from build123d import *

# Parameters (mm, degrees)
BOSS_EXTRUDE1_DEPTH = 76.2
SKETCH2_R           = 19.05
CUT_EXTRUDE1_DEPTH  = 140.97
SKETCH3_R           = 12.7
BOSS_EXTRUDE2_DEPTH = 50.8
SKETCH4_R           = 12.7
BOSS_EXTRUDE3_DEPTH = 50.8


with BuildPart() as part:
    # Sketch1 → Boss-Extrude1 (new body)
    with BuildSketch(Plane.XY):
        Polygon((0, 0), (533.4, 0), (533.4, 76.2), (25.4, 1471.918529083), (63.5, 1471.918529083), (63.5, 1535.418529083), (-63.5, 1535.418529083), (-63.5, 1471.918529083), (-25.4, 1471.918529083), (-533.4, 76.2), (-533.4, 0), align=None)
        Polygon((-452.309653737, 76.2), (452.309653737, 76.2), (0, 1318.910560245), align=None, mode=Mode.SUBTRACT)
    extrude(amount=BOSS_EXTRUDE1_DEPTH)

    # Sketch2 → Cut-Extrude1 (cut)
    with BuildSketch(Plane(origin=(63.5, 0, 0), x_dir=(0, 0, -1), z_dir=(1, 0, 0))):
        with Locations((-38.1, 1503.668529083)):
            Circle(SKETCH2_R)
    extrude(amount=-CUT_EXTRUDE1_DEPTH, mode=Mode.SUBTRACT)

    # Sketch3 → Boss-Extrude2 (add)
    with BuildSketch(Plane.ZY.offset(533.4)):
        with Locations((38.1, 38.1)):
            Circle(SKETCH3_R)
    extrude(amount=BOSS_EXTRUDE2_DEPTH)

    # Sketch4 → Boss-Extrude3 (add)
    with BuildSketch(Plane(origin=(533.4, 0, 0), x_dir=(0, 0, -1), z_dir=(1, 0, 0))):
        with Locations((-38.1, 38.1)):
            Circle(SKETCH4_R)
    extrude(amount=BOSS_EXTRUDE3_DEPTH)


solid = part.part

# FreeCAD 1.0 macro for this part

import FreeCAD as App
import Part
import Sketcher

V = App.Vector
Q = App.Units.Quantity

doc = App.newDocument("Part")
body = doc.addObject("PartDesign::Body", "Body")

# Sketch on XY plane
sketch1 = body.newObject("Sketcher::SketchObject", "Sketch")
sketch1.AttachmentSupport = (doc.getObject("XY_Plane"), [""])
sketch1.MapMode = "FlatFace"
sketch1.addGeometry(Part.LineSegment(V(533, 0, 0), V(533, 76, 0)), False)
sketch1.addGeometry(Part.LineSegment(V(533, 76, 0), V(25, 1472, 0)), False)
sketch1.addGeometry(Part.LineSegment(V(25, 1472, 0), V(64, 1472, 0)), False)
sketch1.addGeometry(Part.LineSegment(V(64, 1472, 0), V(64, 1535, 0)), False)
sketch1.addGeometry(Part.LineSegment(V(64, 1535, 0), V(-64, 1535, 0)), False)
sketch1.addGeometry(Part.LineSegment(V(-64, 1535, 0), V(-64, 1472, 0)), False)
sketch1.addGeometry(Part.LineSegment(V(-64, 1472, 0), V(-25, 1472, 0)), False)
sketch1.addGeometry(Part.LineSegment(V(-25, 1472, 0), V(-533, 76, 0)), False)
sketch1.addGeometry(Part.LineSegment(V(-533, 76, 0), V(-533, 0, 0)), False)
sketch1.addGeometry(Part.LineSegment(V(-533, 0, 0), V(533, 0, 0)), False)
sketch1.addGeometry(Part.LineSegment(V(452, 76, 0), V(-452, 76, 0)), False)
sketch1.addGeometry(Part.LineSegment(V(-452, 76, 0), V(0, 1319, 0)), False)
sketch1.addGeometry(Part.LineSegment(V(0, 1319, 0), V(452, 76, 0)), False)
sketch1.addConstraint(Sketcher.Constraint("Coincident", 0, 2, 1, 1))
sketch1.addConstraint(Sketcher.Constraint("Coincident", 1, 2, 2, 1))
sketch1.addConstraint(Sketcher.Constraint("Coincident", 2, 2, 3, 1))
sketch1.addConstraint(Sketcher.Constraint("Coincident", 3, 2, 4, 1))
sketch1.addConstraint(Sketcher.Constraint("Coincident", 4, 2, 5, 1))
sketch1.addConstraint(Sketcher.Constraint("Coincident", 5, 2, 6, 1))
sketch1.addConstraint(Sketcher.Constraint("Coincident", 6, 2, 7, 1))
sketch1.addConstraint(Sketcher.Constraint("Coincident", 7, 2, 8, 1))
sketch1.addConstraint(Sketcher.Constraint("Coincident", 8, 2, 9, 1))
sketch1.addConstraint(Sketcher.Constraint("Coincident", 9, 2, 0, 1))
sketch1.addConstraint(Sketcher.Constraint("Coincident", 10, 2, 11, 1))
sketch1.addConstraint(Sketcher.Constraint("Coincident", 11, 2, 12, 1))
sketch1.addConstraint(Sketcher.Constraint("Coincident", 12, 2, 10, 1))
sketch1.addConstraint(Sketcher.Constraint("Vertical", 0))
sketch1.addConstraint(Sketcher.Constraint("Horizontal", 2))
sketch1.addConstraint(Sketcher.Constraint("Vertical", 3))
sketch1.addConstraint(Sketcher.Constraint("Horizontal", 4))
sketch1.addConstraint(Sketcher.Constraint("Vertical", 5))
sketch1.addConstraint(Sketcher.Constraint("Horizontal", 6))
sketch1.addConstraint(Sketcher.Constraint("Vertical", 8))
sketch1.addConstraint(Sketcher.Constraint("Horizontal", 9))
sketch1.addConstraint(Sketcher.Constraint("Horizontal", 10))
sketch1.addConstraint(Sketcher.Constraint("Symmetric", 8, 2, 9, 2, -1, 1))
sketch1.addConstraint(Sketcher.Constraint("Symmetric", 2, 2, 5, 2, -2))
sketch1.addConstraint(Sketcher.Constraint("PointOnObject", 11, 2, -2))
sketch1.addConstraint(Sketcher.Constraint("Parallel", 7, 11))
sketch1.addConstraint(Sketcher.Constraint("Parallel", 1, 12))
sketch1.addConstraint(Sketcher.Constraint("Horizontal", 0, 2, 7, 2))
sketch1.addConstraint(Sketcher.Constraint("Horizontal", 7, 2, 10, 2))
sketch1.addConstraint(Sketcher.Constraint("Equal", 2, 6))
sketch1.addConstraint(Sketcher.Constraint("DistanceX", 4, 2, 4, 1, Q("5 in")))
sketch1.addConstraint(Sketcher.Constraint("DistanceX", 9, 1, 9, 2, Q("42 in")))
sketch1.addConstraint(Sketcher.Constraint("DistanceY", 0, 1, 0, 2, Q("3 in")))
sketch1.addConstraint(Sketcher.Constraint("DistanceX", 2, 1, 2, 2, Q("1.5 in")))
sketch1.addConstraint(Sketcher.Constraint("DistanceY", 3, 1, 3, 2, Q("2.5 in")))
sketch1.addConstraint(Sketcher.Constraint("Angle", 1, Q("110 deg")))
sketch1.addConstraint(Sketcher.Constraint("DistanceX", 10, 2, 10, 1, 904.619307))
pad1 = body.newObject("PartDesign::Pad", "Pad")
pad1.Profile = sketch1
pad1.Length = Q("3 in")

# Sketch on YZ plane
sketch2 = body.newObject("Sketcher::SketchObject", "Sketch001")
sketch2.AttachmentSupport = (doc.getObject("YZ_Plane"), [""])
sketch2.MapMode = "FlatFace"
sketch2.AttachmentOffset = App.Placement(V(0, 0, 2.5 * 25.4), App.Rotation())
sketch2.addGeometry(Part.Circle(V(1504, 38, 0), V(0, 0, 1), 19), False)
sketch2.addConstraint(Sketcher.Constraint("Diameter", 0, Q("1.5 in")))
sketch2.addConstraint(Sketcher.Constraint("DistanceY", -1, 1, 0, 3, Q("1.5 in")))
sketch2.addConstraint(Sketcher.Constraint("DistanceX", -1, 1, 0, 3, 1503.668529))
pocket1 = body.newObject("PartDesign::Pocket", "Pocket")
pocket1.Profile = sketch2
pocket1.Length = Q("5.55 in")

# Sketch on YZ plane
sketch3 = body.newObject("Sketcher::SketchObject", "Sketch002")
sketch3.AttachmentSupport = (doc.getObject("YZ_Plane"), [""])
sketch3.MapMode = "FlatFace"
sketch3.AttachmentOffset = App.Placement(V(0, 0, -21 * 25.4), App.Rotation())
sketch3.addGeometry(Part.Circle(V(38, 38, 0), V(0, 0, 1), 13), False)
sketch3.addConstraint(Sketcher.Constraint("Diameter", 0, Q("1 in")))
sketch3.addConstraint(Sketcher.Constraint("DistanceX", -1, 1, 0, 3, Q("1.5 in")))
sketch3.addConstraint(Sketcher.Constraint("DistanceY", -1, 1, 0, 3, Q("1.5 in")))
pad2 = body.newObject("PartDesign::Pad", "Pad001")
pad2.Profile = sketch3
pad2.Length = Q("2 in")
pad2.Reversed = True

# Sketch on YZ plane
sketch4 = body.newObject("Sketcher::SketchObject", "Sketch003")
sketch4.AttachmentSupport = (doc.getObject("YZ_Plane"), [""])
sketch4.MapMode = "FlatFace"
sketch4.AttachmentOffset = App.Placement(V(0, 0, 21 * 25.4), App.Rotation())
sketch4.addGeometry(Part.Circle(V(38, 38, 0), V(0, 0, 1), 13), False)
sketch4.addConstraint(Sketcher.Constraint("Diameter", 0, Q("1 in")))
sketch4.addConstraint(Sketcher.Constraint("DistanceX", -1, 1, 0, 3, Q("1.5 in")))
sketch4.addConstraint(Sketcher.Constraint("DistanceY", -1, 1, 0, 3, Q("1.5 in")))
pad3 = body.newObject("PartDesign::Pad", "Pad002")
pad3.Profile = sketch4
pad3.Length = Q("2 in")

doc.recompute()
